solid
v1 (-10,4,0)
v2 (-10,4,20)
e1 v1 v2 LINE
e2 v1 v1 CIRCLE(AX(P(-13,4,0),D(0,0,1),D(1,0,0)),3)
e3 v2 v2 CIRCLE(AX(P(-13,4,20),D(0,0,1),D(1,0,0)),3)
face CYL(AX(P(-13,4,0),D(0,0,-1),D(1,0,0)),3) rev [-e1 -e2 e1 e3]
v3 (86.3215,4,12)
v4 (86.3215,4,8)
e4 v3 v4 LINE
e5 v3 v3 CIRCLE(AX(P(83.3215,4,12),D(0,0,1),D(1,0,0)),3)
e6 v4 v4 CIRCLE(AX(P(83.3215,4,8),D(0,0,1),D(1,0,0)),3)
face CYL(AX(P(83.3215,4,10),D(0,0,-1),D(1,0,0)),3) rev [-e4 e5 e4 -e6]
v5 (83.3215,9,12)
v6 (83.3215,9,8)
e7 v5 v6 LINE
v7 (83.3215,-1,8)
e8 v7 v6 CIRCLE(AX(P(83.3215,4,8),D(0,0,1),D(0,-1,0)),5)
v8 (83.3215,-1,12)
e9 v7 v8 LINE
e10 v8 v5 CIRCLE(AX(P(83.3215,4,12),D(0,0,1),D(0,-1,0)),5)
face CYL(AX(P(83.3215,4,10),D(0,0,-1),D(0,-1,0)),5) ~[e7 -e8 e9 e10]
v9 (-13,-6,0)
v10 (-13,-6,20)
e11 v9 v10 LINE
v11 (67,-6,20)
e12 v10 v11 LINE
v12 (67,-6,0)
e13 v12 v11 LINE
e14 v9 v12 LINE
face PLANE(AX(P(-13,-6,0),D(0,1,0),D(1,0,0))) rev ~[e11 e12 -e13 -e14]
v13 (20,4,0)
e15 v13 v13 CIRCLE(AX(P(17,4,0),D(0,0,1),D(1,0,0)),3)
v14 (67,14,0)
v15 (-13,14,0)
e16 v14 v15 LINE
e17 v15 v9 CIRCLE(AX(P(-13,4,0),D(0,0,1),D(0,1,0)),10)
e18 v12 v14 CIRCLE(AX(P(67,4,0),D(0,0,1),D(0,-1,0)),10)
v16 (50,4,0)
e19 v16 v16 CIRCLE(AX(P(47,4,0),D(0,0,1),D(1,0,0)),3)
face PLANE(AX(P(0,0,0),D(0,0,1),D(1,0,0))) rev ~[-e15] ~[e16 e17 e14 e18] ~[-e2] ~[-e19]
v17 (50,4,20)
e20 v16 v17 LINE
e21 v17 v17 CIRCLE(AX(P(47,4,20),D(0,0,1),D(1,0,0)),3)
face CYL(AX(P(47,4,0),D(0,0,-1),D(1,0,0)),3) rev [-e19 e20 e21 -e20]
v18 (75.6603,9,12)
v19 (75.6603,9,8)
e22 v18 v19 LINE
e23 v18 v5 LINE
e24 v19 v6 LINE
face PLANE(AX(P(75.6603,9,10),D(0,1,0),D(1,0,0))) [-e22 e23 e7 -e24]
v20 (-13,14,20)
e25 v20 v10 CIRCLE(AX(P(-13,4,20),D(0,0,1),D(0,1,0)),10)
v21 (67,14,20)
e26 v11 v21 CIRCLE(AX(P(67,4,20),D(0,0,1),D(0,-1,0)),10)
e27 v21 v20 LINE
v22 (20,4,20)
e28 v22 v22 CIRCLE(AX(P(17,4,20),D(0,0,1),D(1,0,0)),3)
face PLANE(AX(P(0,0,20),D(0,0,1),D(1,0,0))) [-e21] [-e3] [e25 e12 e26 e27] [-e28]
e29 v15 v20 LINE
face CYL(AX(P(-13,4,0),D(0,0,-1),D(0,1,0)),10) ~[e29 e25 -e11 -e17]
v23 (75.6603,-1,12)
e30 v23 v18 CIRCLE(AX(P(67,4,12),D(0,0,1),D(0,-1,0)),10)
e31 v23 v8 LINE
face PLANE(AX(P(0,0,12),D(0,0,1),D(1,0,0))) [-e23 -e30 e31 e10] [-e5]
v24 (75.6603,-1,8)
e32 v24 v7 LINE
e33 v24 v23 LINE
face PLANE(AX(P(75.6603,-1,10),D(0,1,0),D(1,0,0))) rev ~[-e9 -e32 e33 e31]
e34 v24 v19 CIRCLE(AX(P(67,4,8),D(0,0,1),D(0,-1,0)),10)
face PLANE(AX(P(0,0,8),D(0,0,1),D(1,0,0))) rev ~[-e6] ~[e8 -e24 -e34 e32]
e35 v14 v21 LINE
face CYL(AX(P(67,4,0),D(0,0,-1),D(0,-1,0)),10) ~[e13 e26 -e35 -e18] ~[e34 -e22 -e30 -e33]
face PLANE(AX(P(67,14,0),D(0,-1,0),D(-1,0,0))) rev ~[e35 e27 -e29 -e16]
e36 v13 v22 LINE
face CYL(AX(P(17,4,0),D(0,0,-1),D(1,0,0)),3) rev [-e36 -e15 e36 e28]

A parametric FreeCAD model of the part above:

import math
import FreeCAD as App
import Part
import Sketcher
from FreeCAD import Vector

doc = App.newDocument("Part")
body = doc.addObject("PartDesign::Body", "Body")

# Sketch on XY plane
sketch1 = body.newObject("Sketcher::SketchObject", "Sketch")
sketch1.AttachmentSupport = (doc.getObject("XY_Plane"), [""])
sketch1.MapMode = "FlatFace"
sketch1.addGeometry(Part.ArcOfCircle(Part.Circle(Vector(-13, 4, 0), Vector(0, 0, 1), 10), math.radians(90), math.radians(270)), False)
sketch1.addGeometry(Part.LineSegment(Vector(-13, -6, 0), Vector(67, -6, 0)), False)
sketch1.addGeometry(Part.ArcOfCircle(Part.Circle(Vector(67, 4, 0), Vector(0, 0, 1), 10), math.radians(-90), math.radians(90)), False)
sketch1.addGeometry(Part.LineSegment(Vector(67, 14, 0), Vector(-13, 14, 0)), False)
sketch1.addGeometry(Part.Circle(Vector(-13, 4, 0), Vector(0, 0, 1), 3), False)
sketch1.addGeometry(Part.Circle(Vector(17, 4, 0), Vector(0, 0, 1), 3), False)
sketch1.addGeometry(Part.Circle(Vector(47, 4, 0), Vector(0, 0, 1), 3), False)
sketch1.addConstraint(Sketcher.Constraint("Tangent", 0, 2, 1, 1))
sketch1.addConstraint(Sketcher.Constraint("Tangent", 1, 2, 2, 1))
sketch1.addConstraint(Sketcher.Constraint("Tangent", 2, 2, 3, 1))
sketch1.addConstraint(Sketcher.Constraint("Tangent", 3, 2, 0, 1))
sketch1.addConstraint(Sketcher.Constraint("Horizontal", 1))
sketch1.addConstraint(Sketcher.Constraint("Horizontal", 3))
sketch1.addConstraint(Sketcher.Constraint("Coincident", 4, 3, 0, 3))
sketch1.addConstraint(Sketcher.Constraint("Equal", 4, 5))
sketch1.addConstraint(Sketcher.Constraint("Equal", 5, 6))
sketch1.addConstraint(Sketcher.Constraint("Horizontal", 4, 3, 5, 3))
sketch1.addConstraint(Sketcher.Constraint("Horizontal", 5, 3, 6, 3))
sketch1.addConstraint(Sketcher.Constraint("Radius", 0, 10.0))
sketch1.addConstraint(Sketcher.Constraint("DistanceX", 1, 1, 1, 2, 80.0))
sketch1.addConstraint(Sketcher.Constraint("Diameter", 4, 6.0))
sketch1.addConstraint(Sketcher.Constraint("DistanceX", 0, 3, 5, 3, 30.0))
sketch1.addConstraint(Sketcher.Constraint("DistanceX", 6, 3, 2, 3, 20.0))
sketch1.addConstraint(Sketcher.Constraint("DistanceX", 0, 3, -1, 1, 13.0))
sketch1.addConstraint(Sketcher.Constraint("DistanceY", -1, 1, 0, 3, 4.0))
pad1 = body.newObject("PartDesign::Pad", "Pad")
pad1.Profile = sketch1
pad1.Length = 20

# Sketch on XY plane
sketch2 = body.newObject("Sketcher::SketchObject", "Sketch001")
sketch2.AttachmentSupport = (doc.getObject("XY_Plane"), [""])
sketch2.MapMode = "FlatFace"
sketch2.AttachmentOffset = App.Placement(Vector(0, 0, 10), App.Rotation())
sketch2.addGeometry(Part.ArcOfCircle(Part.Circle(Vector(67, 4, 0), Vector(0, 0, 1), 10), math.radians(-30), math.radians(30)), False)
sketch2.addGeometry(Part.LineSegment(Vector(75.7, -1, 0), Vector(83.3, -1, 0)), False)
sketch2.addGeometry(Part.ArcOfCircle(Part.Circle(Vector(83.3, 4, 0), Vector(0, 0, 1), 5), math.radians(-90), math.radians(90)), False)
sketch2.addGeometry(Part.LineSegment(Vector(83.3, 9, 0), Vector(75.7, 9, 0)), False)
sketch2.addGeometry(Part.Circle(Vector(83.3, 4, 0), Vector(0, 0, 1), 3), False)
sketch2.addConstraint(Sketcher.Constraint("Coincident", 0, 1, 1, 1))
sketch2.addConstraint(Sketcher.Constraint("Tangent", 1, 2, 2, 1))
sketch2.addConstraint(Sketcher.Constraint("Tangent", 2, 2, 3, 1))
sketch2.addConstraint(Sketcher.Constraint("Coincident", 3, 2, 0, 2))
sketch2.addConstraint(Sketcher.Constraint("Horizontal", 1))
sketch2.addConstraint(Sketcher.Constraint("Horizontal", 3))
sketch2.addConstraint(Sketcher.Constraint("Coincident", 4, 3, 2, 3))
sketch2.addConstraint(Sketcher.Constraint("Horizontal", 0, 3, 2, 3))
sketch2.addConstraint(Sketcher.Constraint("Diameter", 4, 6.0))
sketch2.addConstraint(Sketcher.Constraint("Radius", 0, 10.0))
sketch2.addConstraint(Sketcher.Constraint("Radius", 2, 5.0))
sketch2.addConstraint(Sketcher.Constraint("DistanceX", -1, 1, 0, 3, 67.0))
sketch2.addConstraint(Sketcher.Constraint("DistanceY", -1, 1, 0, 3, 4.0))
sketch2.addConstraint(Sketcher.Constraint("DistanceX", 1, 1, 1, 2, 7.6612))
pad2 = body.newObject("PartDesign::Pad", "Pad001")
pad2.Profile = sketch2
pad2.Length = 4
pad2.Midplane = True

doc.recompute()
